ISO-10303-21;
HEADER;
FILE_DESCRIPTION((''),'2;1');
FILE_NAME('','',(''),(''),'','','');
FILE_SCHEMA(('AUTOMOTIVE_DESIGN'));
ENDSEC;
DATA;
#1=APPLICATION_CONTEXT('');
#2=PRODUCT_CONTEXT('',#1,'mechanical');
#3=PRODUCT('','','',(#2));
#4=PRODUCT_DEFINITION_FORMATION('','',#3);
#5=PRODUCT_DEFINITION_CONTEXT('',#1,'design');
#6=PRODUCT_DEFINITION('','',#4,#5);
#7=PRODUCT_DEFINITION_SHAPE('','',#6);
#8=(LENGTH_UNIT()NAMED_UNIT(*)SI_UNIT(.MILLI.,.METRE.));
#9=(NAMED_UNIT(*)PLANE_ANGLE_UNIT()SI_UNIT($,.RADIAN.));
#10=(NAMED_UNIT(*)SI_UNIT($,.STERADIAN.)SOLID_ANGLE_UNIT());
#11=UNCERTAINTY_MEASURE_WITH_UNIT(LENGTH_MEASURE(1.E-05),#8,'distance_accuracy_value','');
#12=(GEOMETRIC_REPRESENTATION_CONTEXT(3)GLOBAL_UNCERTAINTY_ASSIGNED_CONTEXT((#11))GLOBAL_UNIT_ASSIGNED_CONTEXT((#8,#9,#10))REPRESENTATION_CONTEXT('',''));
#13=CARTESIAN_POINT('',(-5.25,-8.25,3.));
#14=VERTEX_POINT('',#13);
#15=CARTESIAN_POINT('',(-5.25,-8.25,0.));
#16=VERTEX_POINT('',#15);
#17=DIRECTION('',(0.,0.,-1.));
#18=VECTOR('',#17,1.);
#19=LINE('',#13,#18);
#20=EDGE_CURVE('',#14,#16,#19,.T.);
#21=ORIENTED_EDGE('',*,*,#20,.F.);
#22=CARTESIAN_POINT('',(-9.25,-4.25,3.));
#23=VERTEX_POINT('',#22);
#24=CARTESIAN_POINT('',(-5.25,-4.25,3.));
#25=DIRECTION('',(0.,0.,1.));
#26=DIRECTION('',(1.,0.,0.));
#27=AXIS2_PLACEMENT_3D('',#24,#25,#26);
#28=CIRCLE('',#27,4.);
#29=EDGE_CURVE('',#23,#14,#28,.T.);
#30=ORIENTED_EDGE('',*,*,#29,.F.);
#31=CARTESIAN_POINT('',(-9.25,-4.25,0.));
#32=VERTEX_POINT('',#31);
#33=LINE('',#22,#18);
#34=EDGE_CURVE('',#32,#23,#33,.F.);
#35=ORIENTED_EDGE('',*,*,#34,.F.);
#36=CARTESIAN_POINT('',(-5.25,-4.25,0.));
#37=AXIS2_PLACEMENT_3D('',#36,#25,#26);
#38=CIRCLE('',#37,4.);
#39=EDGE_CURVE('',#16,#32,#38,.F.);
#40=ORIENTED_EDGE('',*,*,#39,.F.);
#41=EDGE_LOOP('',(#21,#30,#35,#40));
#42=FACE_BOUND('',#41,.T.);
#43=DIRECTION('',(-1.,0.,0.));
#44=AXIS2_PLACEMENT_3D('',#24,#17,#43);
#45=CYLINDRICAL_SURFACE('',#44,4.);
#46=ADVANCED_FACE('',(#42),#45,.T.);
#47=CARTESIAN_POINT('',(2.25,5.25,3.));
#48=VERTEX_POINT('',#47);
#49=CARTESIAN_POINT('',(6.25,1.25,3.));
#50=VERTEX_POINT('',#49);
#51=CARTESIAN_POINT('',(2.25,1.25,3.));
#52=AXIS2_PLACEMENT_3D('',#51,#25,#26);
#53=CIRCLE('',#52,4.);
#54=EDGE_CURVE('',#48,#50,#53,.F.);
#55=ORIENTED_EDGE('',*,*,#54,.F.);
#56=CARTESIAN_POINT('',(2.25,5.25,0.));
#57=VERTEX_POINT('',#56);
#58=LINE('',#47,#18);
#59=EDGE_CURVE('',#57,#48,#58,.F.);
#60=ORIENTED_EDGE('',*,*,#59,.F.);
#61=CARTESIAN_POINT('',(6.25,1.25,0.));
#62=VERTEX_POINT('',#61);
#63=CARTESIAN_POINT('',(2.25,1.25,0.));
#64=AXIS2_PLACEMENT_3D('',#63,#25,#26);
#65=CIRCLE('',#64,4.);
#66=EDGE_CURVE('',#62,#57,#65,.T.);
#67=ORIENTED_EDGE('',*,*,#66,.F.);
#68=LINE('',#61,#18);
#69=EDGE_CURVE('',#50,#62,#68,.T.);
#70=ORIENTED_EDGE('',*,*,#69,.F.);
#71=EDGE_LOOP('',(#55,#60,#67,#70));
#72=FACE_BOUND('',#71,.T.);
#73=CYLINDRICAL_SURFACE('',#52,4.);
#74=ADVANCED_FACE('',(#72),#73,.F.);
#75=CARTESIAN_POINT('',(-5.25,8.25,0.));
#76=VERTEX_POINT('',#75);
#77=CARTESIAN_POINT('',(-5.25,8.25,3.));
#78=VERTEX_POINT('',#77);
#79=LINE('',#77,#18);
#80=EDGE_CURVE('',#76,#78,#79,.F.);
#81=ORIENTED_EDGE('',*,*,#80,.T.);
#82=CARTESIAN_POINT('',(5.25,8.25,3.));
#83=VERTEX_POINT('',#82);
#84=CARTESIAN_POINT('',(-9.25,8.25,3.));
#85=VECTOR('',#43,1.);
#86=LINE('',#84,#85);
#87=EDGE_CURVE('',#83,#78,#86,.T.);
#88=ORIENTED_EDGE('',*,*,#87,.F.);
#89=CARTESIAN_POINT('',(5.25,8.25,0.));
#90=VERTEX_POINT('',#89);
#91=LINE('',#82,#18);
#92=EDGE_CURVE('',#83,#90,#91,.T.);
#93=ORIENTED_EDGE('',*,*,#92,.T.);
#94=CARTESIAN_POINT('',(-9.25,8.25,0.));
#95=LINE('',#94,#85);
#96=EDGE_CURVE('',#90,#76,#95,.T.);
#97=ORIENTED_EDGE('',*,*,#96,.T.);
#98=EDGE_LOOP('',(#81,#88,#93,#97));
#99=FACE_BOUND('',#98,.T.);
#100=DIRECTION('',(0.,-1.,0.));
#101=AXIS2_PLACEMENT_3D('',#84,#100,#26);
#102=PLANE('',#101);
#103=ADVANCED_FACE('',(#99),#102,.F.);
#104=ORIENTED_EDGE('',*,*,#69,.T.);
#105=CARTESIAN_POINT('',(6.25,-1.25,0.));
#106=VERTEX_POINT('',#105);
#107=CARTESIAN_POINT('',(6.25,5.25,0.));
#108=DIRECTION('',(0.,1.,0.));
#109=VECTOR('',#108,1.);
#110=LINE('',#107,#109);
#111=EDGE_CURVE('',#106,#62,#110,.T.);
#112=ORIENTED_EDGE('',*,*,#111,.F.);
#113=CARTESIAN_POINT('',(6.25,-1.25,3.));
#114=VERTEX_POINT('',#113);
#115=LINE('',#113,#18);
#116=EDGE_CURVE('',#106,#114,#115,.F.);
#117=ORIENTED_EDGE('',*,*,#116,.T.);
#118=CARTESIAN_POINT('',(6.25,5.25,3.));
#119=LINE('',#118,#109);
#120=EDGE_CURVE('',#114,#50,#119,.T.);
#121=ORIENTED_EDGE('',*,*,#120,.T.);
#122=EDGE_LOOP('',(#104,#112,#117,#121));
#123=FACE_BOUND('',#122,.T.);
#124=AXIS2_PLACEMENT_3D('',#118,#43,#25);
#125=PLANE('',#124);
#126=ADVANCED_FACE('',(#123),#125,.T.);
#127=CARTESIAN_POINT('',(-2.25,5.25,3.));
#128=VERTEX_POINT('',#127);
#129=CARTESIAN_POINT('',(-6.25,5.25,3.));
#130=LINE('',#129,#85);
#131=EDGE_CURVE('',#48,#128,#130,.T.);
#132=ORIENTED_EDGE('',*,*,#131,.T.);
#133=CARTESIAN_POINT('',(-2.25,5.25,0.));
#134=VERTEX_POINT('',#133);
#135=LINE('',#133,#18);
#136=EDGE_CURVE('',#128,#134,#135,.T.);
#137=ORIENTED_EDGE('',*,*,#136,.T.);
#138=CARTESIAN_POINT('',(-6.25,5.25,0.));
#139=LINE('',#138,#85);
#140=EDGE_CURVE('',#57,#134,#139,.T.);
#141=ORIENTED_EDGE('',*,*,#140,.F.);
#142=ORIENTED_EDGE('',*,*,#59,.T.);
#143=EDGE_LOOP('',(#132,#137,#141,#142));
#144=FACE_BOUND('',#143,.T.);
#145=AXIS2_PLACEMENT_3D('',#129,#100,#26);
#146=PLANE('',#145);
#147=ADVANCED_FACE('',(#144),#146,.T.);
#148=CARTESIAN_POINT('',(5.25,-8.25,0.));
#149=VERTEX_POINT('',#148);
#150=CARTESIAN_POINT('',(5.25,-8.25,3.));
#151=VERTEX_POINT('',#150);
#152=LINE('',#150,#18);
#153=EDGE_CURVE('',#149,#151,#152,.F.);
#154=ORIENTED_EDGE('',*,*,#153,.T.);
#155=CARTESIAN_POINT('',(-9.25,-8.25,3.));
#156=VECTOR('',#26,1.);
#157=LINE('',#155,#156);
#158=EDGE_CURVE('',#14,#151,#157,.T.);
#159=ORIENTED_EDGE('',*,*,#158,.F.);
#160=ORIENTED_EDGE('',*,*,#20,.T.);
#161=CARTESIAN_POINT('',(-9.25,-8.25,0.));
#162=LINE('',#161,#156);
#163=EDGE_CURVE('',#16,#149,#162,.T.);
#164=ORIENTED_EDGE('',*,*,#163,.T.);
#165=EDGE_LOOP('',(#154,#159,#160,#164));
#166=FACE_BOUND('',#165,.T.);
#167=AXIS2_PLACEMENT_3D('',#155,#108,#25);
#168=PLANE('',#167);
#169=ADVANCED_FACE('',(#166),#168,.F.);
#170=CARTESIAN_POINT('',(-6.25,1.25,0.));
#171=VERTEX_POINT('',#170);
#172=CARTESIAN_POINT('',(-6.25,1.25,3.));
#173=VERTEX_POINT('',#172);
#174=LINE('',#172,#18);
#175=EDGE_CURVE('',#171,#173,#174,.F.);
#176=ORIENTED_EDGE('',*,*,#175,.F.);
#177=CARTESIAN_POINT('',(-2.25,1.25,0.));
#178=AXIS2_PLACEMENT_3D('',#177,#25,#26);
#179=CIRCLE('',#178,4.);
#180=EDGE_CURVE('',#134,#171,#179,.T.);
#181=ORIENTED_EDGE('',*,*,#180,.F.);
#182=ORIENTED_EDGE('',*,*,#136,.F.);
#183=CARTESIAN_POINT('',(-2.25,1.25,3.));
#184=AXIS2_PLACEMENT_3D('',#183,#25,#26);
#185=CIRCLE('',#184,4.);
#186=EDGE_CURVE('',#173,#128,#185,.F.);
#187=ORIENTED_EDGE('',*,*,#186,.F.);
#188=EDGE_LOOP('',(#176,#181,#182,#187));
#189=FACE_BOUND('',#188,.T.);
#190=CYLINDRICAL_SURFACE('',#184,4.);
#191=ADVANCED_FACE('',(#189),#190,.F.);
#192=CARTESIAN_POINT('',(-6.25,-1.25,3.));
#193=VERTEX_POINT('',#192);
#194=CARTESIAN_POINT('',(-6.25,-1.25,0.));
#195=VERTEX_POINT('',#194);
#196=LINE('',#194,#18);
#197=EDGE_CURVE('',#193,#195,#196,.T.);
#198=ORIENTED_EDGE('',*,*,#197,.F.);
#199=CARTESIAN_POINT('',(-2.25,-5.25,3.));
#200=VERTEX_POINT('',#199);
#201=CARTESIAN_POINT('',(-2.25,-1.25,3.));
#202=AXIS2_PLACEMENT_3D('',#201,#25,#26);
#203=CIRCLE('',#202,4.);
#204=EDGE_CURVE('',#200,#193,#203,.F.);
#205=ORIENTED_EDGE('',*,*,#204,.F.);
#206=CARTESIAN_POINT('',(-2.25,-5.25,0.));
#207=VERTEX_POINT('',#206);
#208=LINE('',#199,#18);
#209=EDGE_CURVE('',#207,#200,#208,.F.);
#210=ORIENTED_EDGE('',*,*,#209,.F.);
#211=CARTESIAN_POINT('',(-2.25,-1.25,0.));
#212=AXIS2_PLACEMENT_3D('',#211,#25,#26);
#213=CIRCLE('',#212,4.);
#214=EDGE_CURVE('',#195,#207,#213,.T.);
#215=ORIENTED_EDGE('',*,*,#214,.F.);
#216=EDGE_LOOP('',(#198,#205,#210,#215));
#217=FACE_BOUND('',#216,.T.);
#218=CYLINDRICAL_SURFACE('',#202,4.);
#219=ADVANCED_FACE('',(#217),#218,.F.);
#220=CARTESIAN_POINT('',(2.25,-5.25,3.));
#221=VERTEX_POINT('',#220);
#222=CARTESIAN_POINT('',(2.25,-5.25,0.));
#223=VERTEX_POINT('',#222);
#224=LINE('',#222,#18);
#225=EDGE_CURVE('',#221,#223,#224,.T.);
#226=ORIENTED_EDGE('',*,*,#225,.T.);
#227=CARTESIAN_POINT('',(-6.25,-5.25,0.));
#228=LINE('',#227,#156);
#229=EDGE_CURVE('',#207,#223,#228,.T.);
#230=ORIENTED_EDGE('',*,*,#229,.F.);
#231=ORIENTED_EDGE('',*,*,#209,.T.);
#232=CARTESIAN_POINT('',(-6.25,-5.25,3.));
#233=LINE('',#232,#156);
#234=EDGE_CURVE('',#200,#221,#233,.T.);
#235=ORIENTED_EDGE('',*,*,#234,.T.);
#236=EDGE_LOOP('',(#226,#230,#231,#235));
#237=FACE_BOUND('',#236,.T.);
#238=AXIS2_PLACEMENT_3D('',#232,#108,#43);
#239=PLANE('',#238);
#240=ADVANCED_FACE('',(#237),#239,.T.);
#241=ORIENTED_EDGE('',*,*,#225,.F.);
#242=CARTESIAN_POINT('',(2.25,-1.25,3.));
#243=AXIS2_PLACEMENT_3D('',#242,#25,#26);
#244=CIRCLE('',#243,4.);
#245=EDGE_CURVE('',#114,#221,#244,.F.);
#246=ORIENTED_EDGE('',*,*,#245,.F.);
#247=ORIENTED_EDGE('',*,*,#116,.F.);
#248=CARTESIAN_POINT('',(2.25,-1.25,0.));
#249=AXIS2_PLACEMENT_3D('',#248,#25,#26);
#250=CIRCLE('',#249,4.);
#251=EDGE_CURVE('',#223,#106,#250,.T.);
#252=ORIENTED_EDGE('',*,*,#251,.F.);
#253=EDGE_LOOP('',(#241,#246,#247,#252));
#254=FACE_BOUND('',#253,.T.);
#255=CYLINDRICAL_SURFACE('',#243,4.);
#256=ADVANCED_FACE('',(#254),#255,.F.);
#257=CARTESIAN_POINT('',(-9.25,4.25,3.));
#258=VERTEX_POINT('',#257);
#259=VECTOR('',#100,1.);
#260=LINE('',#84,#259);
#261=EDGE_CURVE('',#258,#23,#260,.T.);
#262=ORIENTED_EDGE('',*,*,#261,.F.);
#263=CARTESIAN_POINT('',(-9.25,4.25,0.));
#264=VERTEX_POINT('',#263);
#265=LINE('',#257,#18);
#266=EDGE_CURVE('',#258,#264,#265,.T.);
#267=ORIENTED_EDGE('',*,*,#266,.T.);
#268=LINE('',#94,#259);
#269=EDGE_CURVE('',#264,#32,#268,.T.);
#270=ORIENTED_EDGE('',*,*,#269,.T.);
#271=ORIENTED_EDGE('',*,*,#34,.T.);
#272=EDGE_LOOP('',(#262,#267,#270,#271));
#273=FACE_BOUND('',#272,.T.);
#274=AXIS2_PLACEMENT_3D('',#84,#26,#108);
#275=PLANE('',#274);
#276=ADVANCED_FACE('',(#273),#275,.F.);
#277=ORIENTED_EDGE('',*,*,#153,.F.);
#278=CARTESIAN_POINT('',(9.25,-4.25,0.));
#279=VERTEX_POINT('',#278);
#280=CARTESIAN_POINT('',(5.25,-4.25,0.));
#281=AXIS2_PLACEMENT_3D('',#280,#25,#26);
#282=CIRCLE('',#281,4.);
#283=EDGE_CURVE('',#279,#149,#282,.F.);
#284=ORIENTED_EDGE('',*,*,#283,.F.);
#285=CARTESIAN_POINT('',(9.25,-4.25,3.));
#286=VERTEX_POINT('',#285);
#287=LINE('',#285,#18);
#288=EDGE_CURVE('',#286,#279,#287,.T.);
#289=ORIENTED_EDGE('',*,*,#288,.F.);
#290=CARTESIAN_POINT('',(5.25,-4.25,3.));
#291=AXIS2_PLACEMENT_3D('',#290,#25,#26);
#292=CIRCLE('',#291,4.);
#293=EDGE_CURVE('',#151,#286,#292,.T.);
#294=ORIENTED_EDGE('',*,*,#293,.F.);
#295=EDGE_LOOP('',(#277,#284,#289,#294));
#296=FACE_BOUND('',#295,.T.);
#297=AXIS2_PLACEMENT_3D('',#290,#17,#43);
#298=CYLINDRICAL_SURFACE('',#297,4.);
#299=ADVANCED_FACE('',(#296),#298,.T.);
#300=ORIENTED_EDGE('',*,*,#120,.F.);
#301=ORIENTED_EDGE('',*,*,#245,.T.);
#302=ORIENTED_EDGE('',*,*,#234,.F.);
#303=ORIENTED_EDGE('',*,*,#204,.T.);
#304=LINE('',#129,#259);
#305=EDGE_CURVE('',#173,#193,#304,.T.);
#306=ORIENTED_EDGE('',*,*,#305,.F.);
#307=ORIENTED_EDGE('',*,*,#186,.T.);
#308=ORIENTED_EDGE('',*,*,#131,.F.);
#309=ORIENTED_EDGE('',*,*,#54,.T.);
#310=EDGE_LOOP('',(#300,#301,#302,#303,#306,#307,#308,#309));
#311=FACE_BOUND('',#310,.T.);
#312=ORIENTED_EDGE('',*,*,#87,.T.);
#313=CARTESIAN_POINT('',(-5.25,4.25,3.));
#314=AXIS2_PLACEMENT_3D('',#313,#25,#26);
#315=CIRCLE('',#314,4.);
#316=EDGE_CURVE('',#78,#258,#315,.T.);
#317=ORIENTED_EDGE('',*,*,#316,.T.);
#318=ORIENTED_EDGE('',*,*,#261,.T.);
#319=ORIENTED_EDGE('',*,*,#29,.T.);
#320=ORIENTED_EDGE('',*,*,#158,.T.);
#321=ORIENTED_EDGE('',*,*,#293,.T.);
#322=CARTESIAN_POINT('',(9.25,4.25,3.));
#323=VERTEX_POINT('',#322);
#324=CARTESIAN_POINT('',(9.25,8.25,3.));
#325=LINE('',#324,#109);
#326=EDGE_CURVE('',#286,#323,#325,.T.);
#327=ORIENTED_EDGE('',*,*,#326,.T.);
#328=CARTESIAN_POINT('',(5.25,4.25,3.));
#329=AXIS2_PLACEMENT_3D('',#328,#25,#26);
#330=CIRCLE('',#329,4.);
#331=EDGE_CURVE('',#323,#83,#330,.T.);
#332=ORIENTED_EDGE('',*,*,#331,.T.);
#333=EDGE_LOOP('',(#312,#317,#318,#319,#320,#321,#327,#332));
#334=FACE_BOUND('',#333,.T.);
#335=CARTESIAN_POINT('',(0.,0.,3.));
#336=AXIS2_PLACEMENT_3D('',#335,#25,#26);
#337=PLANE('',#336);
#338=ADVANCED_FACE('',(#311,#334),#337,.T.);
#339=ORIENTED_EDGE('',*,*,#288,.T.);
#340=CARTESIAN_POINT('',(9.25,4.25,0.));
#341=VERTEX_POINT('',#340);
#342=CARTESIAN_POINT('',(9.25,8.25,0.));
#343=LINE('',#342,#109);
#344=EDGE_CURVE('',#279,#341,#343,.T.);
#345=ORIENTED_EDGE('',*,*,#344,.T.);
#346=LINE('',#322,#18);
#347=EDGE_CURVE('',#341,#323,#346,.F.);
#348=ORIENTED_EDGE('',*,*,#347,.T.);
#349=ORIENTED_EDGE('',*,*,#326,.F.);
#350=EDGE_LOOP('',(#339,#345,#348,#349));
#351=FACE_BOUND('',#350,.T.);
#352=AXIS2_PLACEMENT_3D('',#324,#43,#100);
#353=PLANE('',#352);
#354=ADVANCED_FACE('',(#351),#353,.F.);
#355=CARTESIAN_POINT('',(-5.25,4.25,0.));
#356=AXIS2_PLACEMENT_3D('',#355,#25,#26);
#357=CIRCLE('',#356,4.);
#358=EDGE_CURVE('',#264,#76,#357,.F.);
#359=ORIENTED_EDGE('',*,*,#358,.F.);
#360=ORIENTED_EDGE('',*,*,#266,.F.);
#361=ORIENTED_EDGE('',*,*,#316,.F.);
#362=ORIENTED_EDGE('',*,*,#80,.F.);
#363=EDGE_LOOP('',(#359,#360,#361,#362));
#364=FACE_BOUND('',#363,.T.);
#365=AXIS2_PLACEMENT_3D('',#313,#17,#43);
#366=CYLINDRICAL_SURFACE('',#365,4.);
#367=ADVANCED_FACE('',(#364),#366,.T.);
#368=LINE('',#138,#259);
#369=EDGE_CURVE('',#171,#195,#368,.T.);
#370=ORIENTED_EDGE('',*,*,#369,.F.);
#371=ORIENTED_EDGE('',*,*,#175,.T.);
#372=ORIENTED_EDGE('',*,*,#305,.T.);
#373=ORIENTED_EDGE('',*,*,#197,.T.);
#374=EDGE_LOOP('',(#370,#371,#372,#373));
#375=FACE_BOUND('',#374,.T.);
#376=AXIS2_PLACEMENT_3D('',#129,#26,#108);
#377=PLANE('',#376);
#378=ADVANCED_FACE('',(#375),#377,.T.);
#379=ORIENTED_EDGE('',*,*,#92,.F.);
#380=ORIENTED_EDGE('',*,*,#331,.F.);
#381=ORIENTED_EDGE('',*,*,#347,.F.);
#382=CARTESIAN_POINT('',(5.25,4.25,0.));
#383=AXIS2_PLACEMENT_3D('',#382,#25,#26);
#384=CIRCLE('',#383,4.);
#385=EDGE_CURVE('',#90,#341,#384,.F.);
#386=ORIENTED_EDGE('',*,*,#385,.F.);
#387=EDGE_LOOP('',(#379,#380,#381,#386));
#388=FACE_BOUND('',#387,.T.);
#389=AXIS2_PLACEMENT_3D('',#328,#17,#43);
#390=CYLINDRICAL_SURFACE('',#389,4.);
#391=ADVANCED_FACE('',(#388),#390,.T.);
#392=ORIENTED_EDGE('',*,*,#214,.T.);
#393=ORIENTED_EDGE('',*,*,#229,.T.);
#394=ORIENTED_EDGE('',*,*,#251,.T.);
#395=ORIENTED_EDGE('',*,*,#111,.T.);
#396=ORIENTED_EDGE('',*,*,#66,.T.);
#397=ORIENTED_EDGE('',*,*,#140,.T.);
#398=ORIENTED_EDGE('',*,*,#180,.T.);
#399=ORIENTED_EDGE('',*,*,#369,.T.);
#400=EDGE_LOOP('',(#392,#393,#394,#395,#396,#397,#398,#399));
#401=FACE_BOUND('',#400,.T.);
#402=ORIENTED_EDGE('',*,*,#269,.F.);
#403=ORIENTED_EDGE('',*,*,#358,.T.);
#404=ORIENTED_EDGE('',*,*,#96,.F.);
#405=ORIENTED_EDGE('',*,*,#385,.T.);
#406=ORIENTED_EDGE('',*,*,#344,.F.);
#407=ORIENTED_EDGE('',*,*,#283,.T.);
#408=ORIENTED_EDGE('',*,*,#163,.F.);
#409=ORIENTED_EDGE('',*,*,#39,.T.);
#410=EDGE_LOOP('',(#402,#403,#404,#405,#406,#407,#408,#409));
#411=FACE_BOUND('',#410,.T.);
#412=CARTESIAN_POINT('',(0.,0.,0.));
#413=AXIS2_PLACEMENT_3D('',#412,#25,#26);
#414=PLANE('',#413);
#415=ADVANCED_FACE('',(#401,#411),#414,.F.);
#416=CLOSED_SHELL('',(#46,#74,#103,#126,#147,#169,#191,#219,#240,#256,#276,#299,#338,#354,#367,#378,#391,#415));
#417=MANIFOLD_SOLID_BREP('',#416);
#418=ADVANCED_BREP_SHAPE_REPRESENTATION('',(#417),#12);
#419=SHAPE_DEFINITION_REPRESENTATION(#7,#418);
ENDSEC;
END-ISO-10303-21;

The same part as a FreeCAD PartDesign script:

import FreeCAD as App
import Part
import Sketcher


def edges_at(feature, points):
    """Names of the edges that pass closest to the given points."""
    edges = feature.Shape.Edges
    near = lambda p: min(range(len(edges)), key=lambda i: edges[i].distToShape(Part.Vertex(*p))[0])
    return sorted({f"Edge{near(p) + 1}" for p in points})

doc = App.newDocument("Part")
body = doc.addObject("PartDesign::Body", "Body")

sketch1 = body.newObject("Sketcher::SketchObject", "Sketch")
sketch1.AttachmentSupport = (doc.getObject("XY_Plane"), [""])
sketch1.MapMode = "FlatFace"
sketch1.addGeometry([
    Part.LineSegment(App.Vector(-9, 8, 0), App.Vector(-9, -8, 0)),
    Part.LineSegment(App.Vector(-9, -8, 0), App.Vector(9, -8, 0)),
    Part.LineSegment(App.Vector(9, -8, 0), App.Vector(9, 8, 0)),
    Part.LineSegment(App.Vector(9, 8, 0), App.Vector(-9, 8, 0)),
    Part.LineSegment(App.Vector(6, -5, 0), App.Vector(-6, -5, 0)),
    Part.LineSegment(App.Vector(-6, -5, 0), App.Vector(-6, 5, 0)),
    Part.LineSegment(App.Vector(-6, 5, 0), App.Vector(6, 5, 0)),
    Part.LineSegment(App.Vector(6, 5, 0), App.Vector(6, -5, 0)),
], False)
sketch1.addConstraint([
    Sketcher.Constraint("Coincident", 0, 2, 1, 1),
    Sketcher.Constraint("Coincident", 1, 2, 2, 1),
    Sketcher.Constraint("Coincident", 2, 2, 3, 1),
    Sketcher.Constraint("Coincident", 3, 2, 0, 1),
    Sketcher.Constraint("Coincident", 4, 2, 5, 1),
    Sketcher.Constraint("Coincident", 5, 2, 6, 1),
    Sketcher.Constraint("Coincident", 6, 2, 7, 1),
    Sketcher.Constraint("Coincident", 7, 2, 4, 1),
    Sketcher.Constraint("Vertical", 0),
    Sketcher.Constraint("Horizontal", 1),
    Sketcher.Constraint("Vertical", 2),
    Sketcher.Constraint("Horizontal", 3),
    Sketcher.Constraint("Horizontal", 4),
    Sketcher.Constraint("Vertical", 5),
    Sketcher.Constraint("Horizontal", 6),
    Sketcher.Constraint("Vertical", 7),
    Sketcher.Constraint("Symmetric", 0, 2, 2, 2, -1, 1),
    Sketcher.Constraint("Symmetric", 4, 2, 6, 2, -1, 1),
    Sketcher.Constraint("DistanceX", 1, 1, 1, 2, 18.5),
    Sketcher.Constraint("DistanceX", 4, 2, 4, 1, 12.5),
    Sketcher.Constraint("DistanceY", 0, 2, 0, 1, 16.5),
    Sketcher.Constraint("DistanceY", 5, 1, 5, 2, 10.5),
])
pad1 = body.newObject("PartDesign::Pad", "Pad")
pad1.Profile = sketch1
pad1.Length = 3
doc.recompute()

fillet = body.newObject("PartDesign::Fillet", "Fillet")
fillet.Base = (pad1, edges_at(pad1, [
    (6.25, -5.25, 1.5),
    (6.25, 5.25, 1.5),
    (-6.25, 5.25, 1.5),
    (-6.25, -5.25, 1.5),
    (9.25, -8.25, 1.5),
    (-9.25, -8.25, 1.5),
    (-9.25, 8.25, 1.5),
    (9.25, 8.25, 1.5),
]))
fillet.Radius = 4

doc.recompute()
